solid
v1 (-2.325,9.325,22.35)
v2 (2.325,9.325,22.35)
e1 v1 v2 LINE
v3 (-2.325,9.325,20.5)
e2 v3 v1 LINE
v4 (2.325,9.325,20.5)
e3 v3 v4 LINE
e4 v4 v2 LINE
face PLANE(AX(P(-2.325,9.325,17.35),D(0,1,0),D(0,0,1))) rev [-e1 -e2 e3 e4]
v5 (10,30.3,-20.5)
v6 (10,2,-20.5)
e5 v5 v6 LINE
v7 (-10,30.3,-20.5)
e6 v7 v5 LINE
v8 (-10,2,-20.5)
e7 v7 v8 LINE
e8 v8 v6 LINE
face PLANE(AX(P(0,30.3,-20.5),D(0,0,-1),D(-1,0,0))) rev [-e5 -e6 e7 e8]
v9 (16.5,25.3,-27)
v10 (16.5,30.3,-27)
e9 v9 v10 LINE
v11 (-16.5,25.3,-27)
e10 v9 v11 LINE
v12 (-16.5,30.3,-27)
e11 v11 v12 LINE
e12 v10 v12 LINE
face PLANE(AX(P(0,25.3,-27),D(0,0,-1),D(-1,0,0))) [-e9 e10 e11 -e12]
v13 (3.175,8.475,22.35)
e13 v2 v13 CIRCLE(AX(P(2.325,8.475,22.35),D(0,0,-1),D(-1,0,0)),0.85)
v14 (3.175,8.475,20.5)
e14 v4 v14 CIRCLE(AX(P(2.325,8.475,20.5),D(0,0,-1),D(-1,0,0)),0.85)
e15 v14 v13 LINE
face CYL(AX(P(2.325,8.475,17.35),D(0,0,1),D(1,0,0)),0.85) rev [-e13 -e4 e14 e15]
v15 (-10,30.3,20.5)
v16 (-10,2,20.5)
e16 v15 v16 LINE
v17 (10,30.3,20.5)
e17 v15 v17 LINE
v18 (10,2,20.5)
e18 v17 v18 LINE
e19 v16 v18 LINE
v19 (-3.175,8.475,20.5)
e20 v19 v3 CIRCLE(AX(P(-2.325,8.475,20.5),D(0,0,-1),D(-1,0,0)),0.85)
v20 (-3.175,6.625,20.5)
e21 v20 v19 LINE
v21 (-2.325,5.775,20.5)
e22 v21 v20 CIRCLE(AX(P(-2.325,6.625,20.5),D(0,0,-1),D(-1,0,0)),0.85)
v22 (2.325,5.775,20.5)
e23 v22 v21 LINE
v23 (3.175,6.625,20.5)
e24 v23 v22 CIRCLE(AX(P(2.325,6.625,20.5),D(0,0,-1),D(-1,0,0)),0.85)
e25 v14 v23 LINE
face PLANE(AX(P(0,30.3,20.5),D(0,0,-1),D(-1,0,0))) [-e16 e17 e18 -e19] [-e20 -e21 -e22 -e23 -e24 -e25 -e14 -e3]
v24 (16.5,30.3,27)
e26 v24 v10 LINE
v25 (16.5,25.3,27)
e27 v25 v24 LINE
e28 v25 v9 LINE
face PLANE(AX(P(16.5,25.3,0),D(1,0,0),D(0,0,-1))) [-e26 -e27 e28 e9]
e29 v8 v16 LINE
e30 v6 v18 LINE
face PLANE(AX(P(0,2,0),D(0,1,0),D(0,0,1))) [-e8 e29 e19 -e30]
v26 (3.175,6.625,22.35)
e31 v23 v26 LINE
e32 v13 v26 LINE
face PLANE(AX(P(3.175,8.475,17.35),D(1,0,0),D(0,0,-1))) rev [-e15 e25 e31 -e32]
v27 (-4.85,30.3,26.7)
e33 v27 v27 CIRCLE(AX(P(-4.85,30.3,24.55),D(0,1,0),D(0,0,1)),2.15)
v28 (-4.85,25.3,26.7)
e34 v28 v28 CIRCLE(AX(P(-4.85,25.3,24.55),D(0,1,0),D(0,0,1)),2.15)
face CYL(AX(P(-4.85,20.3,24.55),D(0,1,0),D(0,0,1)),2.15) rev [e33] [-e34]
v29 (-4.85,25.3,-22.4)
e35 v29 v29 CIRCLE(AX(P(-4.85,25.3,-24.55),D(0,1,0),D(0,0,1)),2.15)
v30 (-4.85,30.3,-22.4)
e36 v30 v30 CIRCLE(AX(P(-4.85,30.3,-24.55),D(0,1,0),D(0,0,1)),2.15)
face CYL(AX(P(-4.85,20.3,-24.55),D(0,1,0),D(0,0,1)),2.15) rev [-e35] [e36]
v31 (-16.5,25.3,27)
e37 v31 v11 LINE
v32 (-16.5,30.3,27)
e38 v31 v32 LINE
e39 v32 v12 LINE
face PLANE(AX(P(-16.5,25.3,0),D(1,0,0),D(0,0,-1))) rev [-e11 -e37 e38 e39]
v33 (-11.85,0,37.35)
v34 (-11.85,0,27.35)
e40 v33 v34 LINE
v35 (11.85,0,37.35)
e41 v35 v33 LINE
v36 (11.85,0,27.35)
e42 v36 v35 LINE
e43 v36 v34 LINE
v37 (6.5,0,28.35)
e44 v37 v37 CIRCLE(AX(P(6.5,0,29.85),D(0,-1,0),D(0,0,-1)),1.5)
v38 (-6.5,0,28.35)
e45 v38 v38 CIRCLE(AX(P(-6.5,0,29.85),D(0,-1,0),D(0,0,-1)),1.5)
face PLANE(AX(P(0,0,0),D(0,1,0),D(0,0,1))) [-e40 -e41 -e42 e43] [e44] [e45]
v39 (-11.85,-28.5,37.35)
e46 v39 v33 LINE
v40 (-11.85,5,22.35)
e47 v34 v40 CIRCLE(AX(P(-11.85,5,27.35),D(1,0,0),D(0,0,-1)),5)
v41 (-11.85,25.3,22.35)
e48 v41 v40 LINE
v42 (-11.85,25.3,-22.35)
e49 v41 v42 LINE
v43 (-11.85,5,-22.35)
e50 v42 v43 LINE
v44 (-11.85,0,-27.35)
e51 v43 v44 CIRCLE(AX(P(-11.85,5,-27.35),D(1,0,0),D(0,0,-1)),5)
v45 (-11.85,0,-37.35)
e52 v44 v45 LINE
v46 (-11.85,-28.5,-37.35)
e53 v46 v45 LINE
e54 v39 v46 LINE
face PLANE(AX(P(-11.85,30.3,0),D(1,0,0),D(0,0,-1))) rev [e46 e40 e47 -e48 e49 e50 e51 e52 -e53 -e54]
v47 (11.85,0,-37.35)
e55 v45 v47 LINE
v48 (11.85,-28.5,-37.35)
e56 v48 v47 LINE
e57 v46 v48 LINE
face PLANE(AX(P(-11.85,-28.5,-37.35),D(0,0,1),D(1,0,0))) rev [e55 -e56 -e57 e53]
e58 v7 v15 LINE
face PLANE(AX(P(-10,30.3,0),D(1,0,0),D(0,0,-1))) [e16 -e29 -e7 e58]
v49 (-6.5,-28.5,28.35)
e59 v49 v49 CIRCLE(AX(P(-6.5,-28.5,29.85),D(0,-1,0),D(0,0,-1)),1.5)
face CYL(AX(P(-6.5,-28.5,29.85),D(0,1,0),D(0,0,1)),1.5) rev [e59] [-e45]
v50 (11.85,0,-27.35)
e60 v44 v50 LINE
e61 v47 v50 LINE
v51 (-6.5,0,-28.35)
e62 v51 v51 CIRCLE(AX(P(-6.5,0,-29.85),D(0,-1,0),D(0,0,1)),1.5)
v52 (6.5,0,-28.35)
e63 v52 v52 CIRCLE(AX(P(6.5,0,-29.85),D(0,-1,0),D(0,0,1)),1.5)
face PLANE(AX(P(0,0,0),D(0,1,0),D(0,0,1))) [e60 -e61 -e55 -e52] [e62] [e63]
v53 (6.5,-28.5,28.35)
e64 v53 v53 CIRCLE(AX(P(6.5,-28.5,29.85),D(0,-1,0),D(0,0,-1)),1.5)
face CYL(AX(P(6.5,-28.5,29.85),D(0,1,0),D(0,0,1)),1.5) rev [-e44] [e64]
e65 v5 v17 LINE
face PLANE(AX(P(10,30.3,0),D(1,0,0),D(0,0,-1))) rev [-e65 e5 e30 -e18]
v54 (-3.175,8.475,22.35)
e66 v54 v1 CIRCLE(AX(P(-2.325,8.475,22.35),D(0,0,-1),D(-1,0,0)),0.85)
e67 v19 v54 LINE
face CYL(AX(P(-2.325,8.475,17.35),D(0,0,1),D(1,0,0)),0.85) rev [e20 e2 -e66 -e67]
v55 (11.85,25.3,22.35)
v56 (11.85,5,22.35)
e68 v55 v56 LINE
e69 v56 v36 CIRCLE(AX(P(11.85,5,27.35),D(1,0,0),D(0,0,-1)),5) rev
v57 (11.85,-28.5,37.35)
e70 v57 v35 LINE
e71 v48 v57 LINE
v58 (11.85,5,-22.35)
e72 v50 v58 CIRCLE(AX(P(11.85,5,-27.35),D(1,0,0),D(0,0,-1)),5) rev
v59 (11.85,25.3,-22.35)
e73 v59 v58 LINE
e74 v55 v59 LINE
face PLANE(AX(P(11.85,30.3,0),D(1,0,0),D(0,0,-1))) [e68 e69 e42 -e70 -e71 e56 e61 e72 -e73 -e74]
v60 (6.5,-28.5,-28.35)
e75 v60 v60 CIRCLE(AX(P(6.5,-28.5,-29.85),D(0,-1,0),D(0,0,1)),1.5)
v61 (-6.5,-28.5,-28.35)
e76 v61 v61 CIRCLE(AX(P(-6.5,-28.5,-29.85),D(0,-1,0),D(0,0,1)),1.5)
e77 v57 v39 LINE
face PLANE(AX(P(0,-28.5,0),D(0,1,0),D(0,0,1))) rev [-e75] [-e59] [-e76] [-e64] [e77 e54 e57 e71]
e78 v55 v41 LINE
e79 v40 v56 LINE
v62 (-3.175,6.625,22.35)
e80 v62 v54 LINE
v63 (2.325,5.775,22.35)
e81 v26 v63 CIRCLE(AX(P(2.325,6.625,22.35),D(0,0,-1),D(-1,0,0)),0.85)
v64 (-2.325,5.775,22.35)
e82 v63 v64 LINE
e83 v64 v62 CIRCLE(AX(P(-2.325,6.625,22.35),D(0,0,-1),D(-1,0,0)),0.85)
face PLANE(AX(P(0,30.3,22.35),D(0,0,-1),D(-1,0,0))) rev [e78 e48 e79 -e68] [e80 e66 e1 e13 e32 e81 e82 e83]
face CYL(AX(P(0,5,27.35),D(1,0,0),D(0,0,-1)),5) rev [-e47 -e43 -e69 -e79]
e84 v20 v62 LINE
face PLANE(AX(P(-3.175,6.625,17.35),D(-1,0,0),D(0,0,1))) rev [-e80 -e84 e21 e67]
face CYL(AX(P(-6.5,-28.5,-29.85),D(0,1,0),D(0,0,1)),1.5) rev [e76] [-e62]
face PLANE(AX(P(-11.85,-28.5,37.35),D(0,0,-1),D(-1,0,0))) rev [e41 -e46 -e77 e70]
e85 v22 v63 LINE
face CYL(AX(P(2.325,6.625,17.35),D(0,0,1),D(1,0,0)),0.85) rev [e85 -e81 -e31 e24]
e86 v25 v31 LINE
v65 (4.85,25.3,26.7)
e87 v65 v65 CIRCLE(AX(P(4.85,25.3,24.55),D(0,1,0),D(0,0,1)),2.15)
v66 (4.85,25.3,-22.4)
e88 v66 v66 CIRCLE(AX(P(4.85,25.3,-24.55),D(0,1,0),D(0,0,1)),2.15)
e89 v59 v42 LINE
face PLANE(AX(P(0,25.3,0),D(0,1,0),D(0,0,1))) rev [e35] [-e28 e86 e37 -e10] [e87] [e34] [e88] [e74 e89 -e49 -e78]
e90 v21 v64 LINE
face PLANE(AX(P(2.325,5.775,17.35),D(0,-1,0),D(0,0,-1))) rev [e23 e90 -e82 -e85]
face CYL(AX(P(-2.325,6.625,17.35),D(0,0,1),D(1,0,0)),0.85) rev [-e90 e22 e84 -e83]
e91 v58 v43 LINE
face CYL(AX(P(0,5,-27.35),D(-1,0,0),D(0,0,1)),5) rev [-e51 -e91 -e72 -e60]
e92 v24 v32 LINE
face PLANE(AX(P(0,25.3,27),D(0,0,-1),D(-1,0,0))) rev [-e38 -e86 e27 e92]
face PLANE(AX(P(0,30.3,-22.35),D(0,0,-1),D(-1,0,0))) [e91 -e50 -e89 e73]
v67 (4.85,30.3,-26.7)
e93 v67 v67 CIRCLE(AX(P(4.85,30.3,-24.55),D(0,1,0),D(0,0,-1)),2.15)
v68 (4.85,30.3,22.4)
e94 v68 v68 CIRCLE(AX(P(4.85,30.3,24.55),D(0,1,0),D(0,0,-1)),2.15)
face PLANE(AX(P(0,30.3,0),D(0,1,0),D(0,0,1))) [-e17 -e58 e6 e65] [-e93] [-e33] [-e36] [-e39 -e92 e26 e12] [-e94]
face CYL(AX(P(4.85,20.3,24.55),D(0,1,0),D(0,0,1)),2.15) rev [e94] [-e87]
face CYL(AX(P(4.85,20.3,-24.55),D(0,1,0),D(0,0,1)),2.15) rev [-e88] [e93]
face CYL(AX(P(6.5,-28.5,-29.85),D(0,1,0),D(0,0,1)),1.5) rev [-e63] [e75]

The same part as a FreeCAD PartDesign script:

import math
import FreeCAD as App
import Part
import Sketcher

V = App.Vector


def edges_at(feature, points):
    """Names of the edges that pass closest to the given points."""
    edges = feature.Shape.Edges
    near = lambda p: min(range(len(edges)), key=lambda i: edges[i].distToShape(Part.Vertex(*p))[0])
    return sorted({f"Edge{near(p) + 1}" for p in points})


def add_polygon(sketch, points):
    """Adds a closed chain of lines whose ends are joined by coincident constraints."""
    first, n = sketch.GeometryCount, len(points)
    for a, b in zip(points, points[1:] + points[:1]):
        sketch.addGeometry(Part.LineSegment(App.Vector(*a, 0), App.Vector(*b, 0)), False)
    for i in range(n):
        sketch.addConstraint(Sketcher.Constraint("Coincident", first + i, 2, first + (i + 1) % n, 1))

doc = App.newDocument("Part")
body = doc.addObject("PartDesign::Body", "Body")

sketch1 = body.newObject("Sketcher::SketchObject", "Sketch")
sketch1.AttachmentSupport = (doc.getObject("XZ_Plane"), [""])
sketch1.MapMode = "FlatFace"
add_polygon(sketch1, [(-12, -22), (-12, 22), (12, 22), (12, -22)])
add_polygon(sketch1, [(10, 20), (-10, 20), (-10, -20), (10, -20)])
sketch1.addConstraint(Sketcher.Constraint("Vertical", 0))
sketch1.addConstraint(Sketcher.Constraint("Horizontal", 1))
sketch1.addConstraint(Sketcher.Constraint("Vertical", 2))
sketch1.addConstraint(Sketcher.Constraint("Horizontal", 3))
sketch1.addConstraint(Sketcher.Constraint("Horizontal", 4))
sketch1.addConstraint(Sketcher.Constraint("Vertical", 5))
sketch1.addConstraint(Sketcher.Constraint("Horizontal", 6))
sketch1.addConstraint(Sketcher.Constraint("Vertical", 7))
sketch1.addConstraint(Sketcher.Constraint("Symmetric", 0, 2, 2, 2, -1, 1))
sketch1.addConstraint(Sketcher.Constraint("Symmetric", 4, 2, 6, 2, -1, 1))
sketch1.addConstraint(Sketcher.Constraint("DistanceX", 4, 2, 4, 1, 20.0))
sketch1.addConstraint(Sketcher.Constraint("DistanceY", 5, 2, 5, 1, 41.0))
sketch1.addConstraint(Sketcher.Constraint("DistanceX", 1, 1, 1, 2, 23.7))
sketch1.addConstraint(Sketcher.Constraint("DistanceY", 0, 1, 0, 2, 44.7))
pad1 = body.newObject("PartDesign::Pad", "Pad")
pad1.Profile = sketch1
pad1.Length = 30.3
pad1.Reversed = True

sketch2 = body.newObject("Sketcher::SketchObject", "Sketch001")
sketch2.AttachmentSupport = (doc.getObject("XZ_Plane"), [""])
sketch2.MapMode = "FlatFace"
add_polygon(sketch2, [(-10, -20), (-10, 20), (10, 20), (10, -20)])
sketch2.addConstraint(Sketcher.Constraint("Vertical", 0))
sketch2.addConstraint(Sketcher.Constraint("Horizontal", 1))
sketch2.addConstraint(Sketcher.Constraint("Vertical", 2))
sketch2.addConstraint(Sketcher.Constraint("Horizontal", 3))
sketch2.addConstraint(Sketcher.Constraint("Symmetric", 0, 2, 2, 2, -1, 1))
sketch2.addConstraint(Sketcher.Constraint("DistanceX", 1, 1, 1, 2, 20.0))
sketch2.addConstraint(Sketcher.Constraint("DistanceY", 0, 1, 0, 2, 41.0))
pad2 = body.newObject("PartDesign::Pad", "Pad001")
pad2.Profile = sketch2
pad2.Length = 2
pad2.Reversed = True

sketch3 = body.newObject("Sketcher::SketchObject", "Sketch002")
sketch3.AttachmentSupport = (doc.getObject("XZ_Plane"), [""])
sketch3.MapMode = "FlatFace"
sketch3.AttachmentOffset = App.Placement(V(0, 0, -30.3), App.Rotation())
add_polygon(sketch3, [(-16, -27), (-16, 27), (16, 27), (16, -27)])
add_polygon(sketch3, [(12, 22), (-12, 22), (-12, -22), (12, -22)])
sketch3.addConstraint(Sketcher.Constraint("Vertical", 0))
sketch3.addConstraint(Sketcher.Constraint("Horizontal", 1))
sketch3.addConstraint(Sketcher.Constraint("Vertical", 2))
sketch3.addConstraint(Sketcher.Constraint("Horizontal", 3))
sketch3.addConstraint(Sketcher.Constraint("Horizontal", 4))
sketch3.addConstraint(Sketcher.Constraint("Vertical", 5))
sketch3.addConstraint(Sketcher.Constraint("Horizontal", 6))
sketch3.addConstraint(Sketcher.Constraint("Vertical", 7))
sketch3.addConstraint(Sketcher.Constraint("Symmetric", 0, 2, 2, 2, -1, 1))
sketch3.addConstraint(Sketcher.Constraint("Symmetric", 4, 2, 6, 2, -1, 1))
sketch3.addConstraint(Sketcher.Constraint("DistanceX", 1, 1, 1, 2, 33.0))
sketch3.addConstraint(Sketcher.Constraint("DistanceY", 0, 1, 0, 2, 54.0))
sketch3.addConstraint(Sketcher.Constraint("DistanceX", 4, 2, 4, 1, 23.7))
sketch3.addConstraint(Sketcher.Constraint("DistanceY", 5, 2, 5, 1, 44.7))
pad3 = body.newObject("PartDesign::Pad", "Pad002")
pad3.Profile = sketch3
pad3.Length = 5

sketch4 = body.newObject("Sketcher::SketchObject", "Sketch003")
sketch4.AttachmentSupport = (doc.getObject("XZ_Plane"), [""])
sketch4.MapMode = "FlatFace"
add_polygon(sketch4, [(-11.8, 37.4), (-11.8, -37.4), (11.8, -37.4), (11.8, 37.4)])
sketch4.addGeometry(Part.Circle(V(-6.5, -29.9, 0), V(0, 0, 1), 1.5), False)
sketch4.addGeometry(Part.Circle(V(6.5, -29.9, 0), V(0, 0, 1), 1.5), False)
sketch4.addGeometry(Part.Circle(V(-6.5, 29.9, 0), V(0, 0, 1), 1.5), False)
sketch4.addGeometry(Part.Circle(V(6.5, 29.9, 0), V(0, 0, 1), 1.5), False)
sketch4.addConstraint(Sketcher.Constraint("Vertical", 0))
sketch4.addConstraint(Sketcher.Constraint("Horizontal", 1))
sketch4.addConstraint(Sketcher.Constraint("Vertical", 2))
sketch4.addConstraint(Sketcher.Constraint("Horizontal", 3))
sketch4.addConstraint(Sketcher.Constraint("Equal", 4, 5))
sketch4.addConstraint(Sketcher.Constraint("Equal", 5, 6))
sketch4.addConstraint(Sketcher.Constraint("Equal", 6, 7))
sketch4.addConstraint(Sketcher.Constraint("Symmetric", 5, 3, 6, 3, -1, 1))
sketch4.addConstraint(Sketcher.Constraint("Symmetric", 4, 3, 7, 3, -1, 1))
sketch4.addConstraint(Sketcher.Constraint("Symmetric", 0, 2, 2, 2, -1, 1))
sketch4.addConstraint(Sketcher.Constraint("Symmetric", 4, 3, 5, 3, -2))
sketch4.addConstraint(Sketcher.Constraint("Diameter", 4, 3.0))
sketch4.addConstraint(Sketcher.Constraint("DistanceX", 1, 1, 1, 2, 23.7))
sketch4.addConstraint(Sketcher.Constraint("DistanceY", 0, 2, 0, 1, 74.7))
sketch4.addConstraint(Sketcher.Constraint("DistanceX", 4, 3, 5, 3, 13.0))
sketch4.addConstraint(Sketcher.Constraint("DistanceY", 4, 3, 6, 3, 59.7))
pad4 = body.newObject("PartDesign::Pad", "Pad003")
pad4.Profile = sketch4
pad4.Length = 28.5
doc.recompute()

fillet = body.newObject("PartDesign::Fillet", "Fillet")
fillet.Base = (pad4, edges_at(pad4, [(0, 0, 22.35), (0, 0, -22.35)]))
fillet.Radius = 5

sketch5 = body.newObject("Sketcher::SketchObject", "Sketch004")
sketch5.AttachmentSupport = (doc.getObject("XY_Plane"), [""])
sketch5.MapMode = "FlatFace"
sketch5.AttachmentOffset = App.Placement(V(0, 0, 22.35), App.Rotation())
sketch5.addGeometry(Part.LineSegment(V(2.3, 9.3, 0), V(-2.3, 9.3, 0)), False)
sketch5.addGeometry(Part.ArcOfCircle(Part.Circle(V(-2.3, 8.5, 0), V(0, 0, 1), 0.8), math.radians(90), math.radians(180)), False)
sketch5.addGeometry(Part.LineSegment(V(-3.2, 8.5, 0), V(-3.2, 6.6, 0)), False)
sketch5.addGeometry(Part.ArcOfCircle(Part.Circle(V(-2.3, 6.6, 0), V(0, 0, 1), 0.8), math.radians(180), math.radians(270)), False)
sketch5.addGeometry(Part.LineSegment(V(-2.3, 5.8, 0), V(2.3, 5.8, 0)), False)
sketch5.addGeometry(Part.ArcOfCircle(Part.Circle(V(2.3, 6.6, 0), V(0, 0, 1), 0.8), math.radians(-90), math.radians(0)), False)
sketch5.addGeometry(Part.LineSegment(V(3.2, 6.6, 0), V(3.2, 8.5, 0)), False)
sketch5.addGeometry(Part.ArcOfCircle(Part.Circle(V(2.3, 8.5, 0), V(0, 0, 1), 0.8), math.radians(0), math.radians(90)), False)
sketch5.addConstraint(Sketcher.Constraint("Tangent", 0, 2, 1, 1))
sketch5.addConstraint(Sketcher.Constraint("Tangent", 1, 2, 2, 1))
sketch5.addConstraint(Sketcher.Constraint("Tangent", 2, 2, 3, 1))
sketch5.addConstraint(Sketcher.Constraint("Tangent", 3, 2, 4, 1))
sketch5.addConstraint(Sketcher.Constraint("Tangent", 4, 2, 5, 1))
sketch5.addConstraint(Sketcher.Constraint("Tangent", 5, 2, 6, 1))
sketch5.addConstraint(Sketcher.Constraint("Tangent", 6, 2, 7, 1))
sketch5.addConstraint(Sketcher.Constraint("Tangent", 7, 2, 0, 1))
sketch5.addConstraint(Sketcher.Constraint("Horizontal", 0))
sketch5.addConstraint(Sketcher.Constraint("Vertical", 2))
sketch5.addConstraint(Sketcher.Constraint("Horizontal", 4))
sketch5.addConstraint(Sketcher.Constraint("Vertical", 6))
sketch5.addConstraint(Sketcher.Constraint("Equal", 1, 3))
sketch5.addConstraint(Sketcher.Constraint("Equal", 3, 5))
sketch5.addConstraint(Sketcher.Constraint("Equal", 5, 7))
sketch5.addConstraint(Sketcher.Constraint("Radius", 1, 0.85))
sketch5.addConstraint(Sketcher.Constraint("DistanceX", 0, 2, 0, 1, 4.65))
sketch5.addConstraint(Sketcher.Constraint("DistanceY", 2, 2, 2, 1, 1.85))
sketch5.addConstraint(Sketcher.Constraint("DistanceX", 1, 3, -1, 1, 2.325))
sketch5.addConstraint(Sketcher.Constraint("DistanceY", -1, 1, 1, 3, 8.475))
pocket1 = body.newObject("PartDesign::Pocket", "Pocket")
pocket1.Profile = sketch5
pocket1.Length = 10
pocket1.Midplane = True

sketch6 = body.newObject("Sketcher::SketchObject", "Sketch005")
sketch6.AttachmentSupport = (doc.getObject("XZ_Plane"), [""])
sketch6.MapMode = "FlatFace"
sketch6.AttachmentOffset = App.Placement(V(0, 0, -30.3), App.Rotation())
sketch6.addGeometry(Part.Circle(V(-4.8, -24.6, 0), V(0, 0, 1), 2.1), False)
sketch6.addGeometry(Part.Circle(V(4.8, -24.6, 0), V(0, 0, 1), 2.1), False)
sketch6.addGeometry(Part.Circle(V(-4.8, 24.6, 0), V(0, 0, 1), 2.1), False)
sketch6.addGeometry(Part.Circle(V(4.8, 24.6, 0), V(0, 0, 1), 2.1), False)
sketch6.addConstraint(Sketcher.Constraint("Equal", 0, 1))
sketch6.addConstraint(Sketcher.Constraint("Equal", 1, 2))
sketch6.addConstraint(Sketcher.Constraint("Equal", 2, 3))
sketch6.addConstraint(Sketcher.Constraint("Symmetric", 1, 3, 2, 3, -1, 1))
sketch6.addConstraint(Sketcher.Constraint("Symmetric", 0, 3, 3, 3, -1, 1))
sketch6.addConstraint(Sketcher.Constraint("Symmetric", 0, 3, 1, 3, -2))
sketch6.addConstraint(Sketcher.Constraint("Diameter", 0, 4.3))
sketch6.addConstraint(Sketcher.Constraint("DistanceX", 0, 3, 1, 3, 9.7))
sketch6.addConstraint(Sketcher.Constraint("DistanceY", 0, 3, 2, 3, 49.1))
pocket2 = body.newObject("PartDesign::Pocket", "Pocket001")
pocket2.Profile = sketch6
pocket2.Length = 10
pocket2.Reversed = True

doc.recompute()
